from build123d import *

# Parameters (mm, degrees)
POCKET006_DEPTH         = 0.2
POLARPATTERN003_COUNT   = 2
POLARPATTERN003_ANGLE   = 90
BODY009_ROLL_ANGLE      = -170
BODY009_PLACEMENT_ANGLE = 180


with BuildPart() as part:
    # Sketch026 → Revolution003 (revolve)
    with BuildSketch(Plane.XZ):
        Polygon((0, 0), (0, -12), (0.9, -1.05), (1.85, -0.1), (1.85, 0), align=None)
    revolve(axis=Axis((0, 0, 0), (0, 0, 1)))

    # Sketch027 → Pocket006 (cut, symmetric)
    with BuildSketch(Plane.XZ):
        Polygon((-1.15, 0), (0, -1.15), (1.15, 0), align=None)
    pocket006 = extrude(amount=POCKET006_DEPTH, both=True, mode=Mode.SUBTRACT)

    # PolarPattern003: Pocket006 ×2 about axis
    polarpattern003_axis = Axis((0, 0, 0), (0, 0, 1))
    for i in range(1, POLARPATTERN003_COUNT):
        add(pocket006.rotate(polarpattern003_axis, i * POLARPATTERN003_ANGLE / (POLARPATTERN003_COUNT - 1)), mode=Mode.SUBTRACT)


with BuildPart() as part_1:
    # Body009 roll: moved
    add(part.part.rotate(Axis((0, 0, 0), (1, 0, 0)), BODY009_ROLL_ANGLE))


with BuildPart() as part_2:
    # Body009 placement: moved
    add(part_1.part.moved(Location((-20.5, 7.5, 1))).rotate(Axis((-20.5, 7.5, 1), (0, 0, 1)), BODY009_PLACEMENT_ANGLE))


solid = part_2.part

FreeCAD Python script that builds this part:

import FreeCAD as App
import Part
import Sketcher
Q = App.Units.Quantity


def add_polygon(sketch, points):
    """Adds a closed chain of lines whose ends are joined by coincident constraints."""
    first, n = sketch.GeometryCount, len(points)
    for a, b in zip(points, points[1:] + points[:1]):
        sketch.addGeometry(Part.LineSegment(App.Vector(*a, 0), App.Vector(*b, 0)), False)
    for i in range(n):
        sketch.addConstraint(Sketcher.Constraint("Coincident", first + i, 2, first + (i + 1) % n, 1))

doc = App.newDocument("Part")
body = doc.addObject("PartDesign::Body", "Body")

# Sketch on XZ plane
sketch1 = doc.addObject("Sketcher::SketchObject", "Sketch")
body.addObject(sketch1)
sketch1.AttachmentSupport = (doc.XZ_Plane, [""])
sketch1.MapMode = "FlatFace"
add_polygon(sketch1, [(0, 0), (0, -12), (0.9, -1.05), (1.85, -0.1), (1.85, 0)])  # lines 0-4
sketch1.addConstraint([
    Sketcher.Constraint("Vertical", 0),
    Sketcher.Constraint("Vertical", 3),
    Sketcher.Constraint("Horizontal", 4),
    Sketcher.Constraint("Coincident", 4, 2, -1, 1),
    Sketcher.Constraint("DistanceY", 0, 2, 0, 1, 12.0),
    Sketcher.Constraint("Angle", 2, Q("45 deg")),
    Sketcher.Constraint("DistanceY", 3, 1, 3, 2, 0.1),
    Sketcher.Constraint("DistanceX", 4, 2, 4, 1, 1.85),
    Sketcher.Constraint("DistanceX", -1, 1, 1, 2, 0.9),
])
revolution = doc.addObject("PartDesign::Revolution", "Revolution")
body.addObject(revolution)
revolution.Profile = sketch1
revolution.ReferenceAxis = (sketch1, ["V_Axis"])
revolution.Angle = 360

# Sketch on XZ plane
sketch2 = doc.addObject("Sketcher::SketchObject", "Sketch001")
body.addObject(sketch2)
sketch2.AttachmentSupport = (doc.XZ_Plane, [""])
sketch2.MapMode = "FlatFace"
add_polygon(sketch2, [(-1.15, 0), (0, -1.15), (1.15, 0)])  # lines 0-2
sketch2.addConstraint([
    Sketcher.Constraint("Horizontal", 2),
    Sketcher.Constraint("Symmetric", 1, 2, 2, 2, -1, 1),
    Sketcher.Constraint("PointOnObject", 0, 2, -2),
    Sketcher.Constraint("Perpendicular", 0, 1),
    Sketcher.Constraint("DistanceX", 2, 2, 2, 1, 2.3),
])
pocket1 = doc.addObject("PartDesign::Pocket", "Pocket")
body.addObject(pocket1)
pocket1.Profile = sketch2
pocket1.Length = 0.4
pocket1.Midplane = True
doc.recompute()

polarpattern = doc.addObject("PartDesign::PolarPattern", "PolarPattern")
body.addObject(polarpattern)
polarpattern.Originals = [pocket1]
polarpattern.Axis = (doc.Z_Axis, [""])
polarpattern.Angle = 90
polarpattern.Occurrences = 2
body.Tip = polarpattern
body2 = doc.addObject("PartDesign::Body", "Body001")
doc.recompute()

body.Placement = App.Placement(App.Vector(0, 0, 0), App.Rotation(App.Vector(1, 0, 0), 190))
boolean = doc.addObject("PartDesign::Boolean", "Boolean")
body2.addObject(boolean)
boolean.Type = "Fuse"
boolean.addObjects([body])
body3 = doc.addObject("PartDesign::Body", "Body002")
doc.recompute()

body2.Placement = App.Placement(App.Vector(-20.5, 7.5, 1), App.Rotation(App.Vector(0, 0, 1), 180))
boolean2 = doc.addObject("PartDesign::Boolean", "Boolean001")
body3.addObject(boolean2)
boolean2.Type = "Fuse"
boolean2.addObjects([body2])

doc.recompute()
